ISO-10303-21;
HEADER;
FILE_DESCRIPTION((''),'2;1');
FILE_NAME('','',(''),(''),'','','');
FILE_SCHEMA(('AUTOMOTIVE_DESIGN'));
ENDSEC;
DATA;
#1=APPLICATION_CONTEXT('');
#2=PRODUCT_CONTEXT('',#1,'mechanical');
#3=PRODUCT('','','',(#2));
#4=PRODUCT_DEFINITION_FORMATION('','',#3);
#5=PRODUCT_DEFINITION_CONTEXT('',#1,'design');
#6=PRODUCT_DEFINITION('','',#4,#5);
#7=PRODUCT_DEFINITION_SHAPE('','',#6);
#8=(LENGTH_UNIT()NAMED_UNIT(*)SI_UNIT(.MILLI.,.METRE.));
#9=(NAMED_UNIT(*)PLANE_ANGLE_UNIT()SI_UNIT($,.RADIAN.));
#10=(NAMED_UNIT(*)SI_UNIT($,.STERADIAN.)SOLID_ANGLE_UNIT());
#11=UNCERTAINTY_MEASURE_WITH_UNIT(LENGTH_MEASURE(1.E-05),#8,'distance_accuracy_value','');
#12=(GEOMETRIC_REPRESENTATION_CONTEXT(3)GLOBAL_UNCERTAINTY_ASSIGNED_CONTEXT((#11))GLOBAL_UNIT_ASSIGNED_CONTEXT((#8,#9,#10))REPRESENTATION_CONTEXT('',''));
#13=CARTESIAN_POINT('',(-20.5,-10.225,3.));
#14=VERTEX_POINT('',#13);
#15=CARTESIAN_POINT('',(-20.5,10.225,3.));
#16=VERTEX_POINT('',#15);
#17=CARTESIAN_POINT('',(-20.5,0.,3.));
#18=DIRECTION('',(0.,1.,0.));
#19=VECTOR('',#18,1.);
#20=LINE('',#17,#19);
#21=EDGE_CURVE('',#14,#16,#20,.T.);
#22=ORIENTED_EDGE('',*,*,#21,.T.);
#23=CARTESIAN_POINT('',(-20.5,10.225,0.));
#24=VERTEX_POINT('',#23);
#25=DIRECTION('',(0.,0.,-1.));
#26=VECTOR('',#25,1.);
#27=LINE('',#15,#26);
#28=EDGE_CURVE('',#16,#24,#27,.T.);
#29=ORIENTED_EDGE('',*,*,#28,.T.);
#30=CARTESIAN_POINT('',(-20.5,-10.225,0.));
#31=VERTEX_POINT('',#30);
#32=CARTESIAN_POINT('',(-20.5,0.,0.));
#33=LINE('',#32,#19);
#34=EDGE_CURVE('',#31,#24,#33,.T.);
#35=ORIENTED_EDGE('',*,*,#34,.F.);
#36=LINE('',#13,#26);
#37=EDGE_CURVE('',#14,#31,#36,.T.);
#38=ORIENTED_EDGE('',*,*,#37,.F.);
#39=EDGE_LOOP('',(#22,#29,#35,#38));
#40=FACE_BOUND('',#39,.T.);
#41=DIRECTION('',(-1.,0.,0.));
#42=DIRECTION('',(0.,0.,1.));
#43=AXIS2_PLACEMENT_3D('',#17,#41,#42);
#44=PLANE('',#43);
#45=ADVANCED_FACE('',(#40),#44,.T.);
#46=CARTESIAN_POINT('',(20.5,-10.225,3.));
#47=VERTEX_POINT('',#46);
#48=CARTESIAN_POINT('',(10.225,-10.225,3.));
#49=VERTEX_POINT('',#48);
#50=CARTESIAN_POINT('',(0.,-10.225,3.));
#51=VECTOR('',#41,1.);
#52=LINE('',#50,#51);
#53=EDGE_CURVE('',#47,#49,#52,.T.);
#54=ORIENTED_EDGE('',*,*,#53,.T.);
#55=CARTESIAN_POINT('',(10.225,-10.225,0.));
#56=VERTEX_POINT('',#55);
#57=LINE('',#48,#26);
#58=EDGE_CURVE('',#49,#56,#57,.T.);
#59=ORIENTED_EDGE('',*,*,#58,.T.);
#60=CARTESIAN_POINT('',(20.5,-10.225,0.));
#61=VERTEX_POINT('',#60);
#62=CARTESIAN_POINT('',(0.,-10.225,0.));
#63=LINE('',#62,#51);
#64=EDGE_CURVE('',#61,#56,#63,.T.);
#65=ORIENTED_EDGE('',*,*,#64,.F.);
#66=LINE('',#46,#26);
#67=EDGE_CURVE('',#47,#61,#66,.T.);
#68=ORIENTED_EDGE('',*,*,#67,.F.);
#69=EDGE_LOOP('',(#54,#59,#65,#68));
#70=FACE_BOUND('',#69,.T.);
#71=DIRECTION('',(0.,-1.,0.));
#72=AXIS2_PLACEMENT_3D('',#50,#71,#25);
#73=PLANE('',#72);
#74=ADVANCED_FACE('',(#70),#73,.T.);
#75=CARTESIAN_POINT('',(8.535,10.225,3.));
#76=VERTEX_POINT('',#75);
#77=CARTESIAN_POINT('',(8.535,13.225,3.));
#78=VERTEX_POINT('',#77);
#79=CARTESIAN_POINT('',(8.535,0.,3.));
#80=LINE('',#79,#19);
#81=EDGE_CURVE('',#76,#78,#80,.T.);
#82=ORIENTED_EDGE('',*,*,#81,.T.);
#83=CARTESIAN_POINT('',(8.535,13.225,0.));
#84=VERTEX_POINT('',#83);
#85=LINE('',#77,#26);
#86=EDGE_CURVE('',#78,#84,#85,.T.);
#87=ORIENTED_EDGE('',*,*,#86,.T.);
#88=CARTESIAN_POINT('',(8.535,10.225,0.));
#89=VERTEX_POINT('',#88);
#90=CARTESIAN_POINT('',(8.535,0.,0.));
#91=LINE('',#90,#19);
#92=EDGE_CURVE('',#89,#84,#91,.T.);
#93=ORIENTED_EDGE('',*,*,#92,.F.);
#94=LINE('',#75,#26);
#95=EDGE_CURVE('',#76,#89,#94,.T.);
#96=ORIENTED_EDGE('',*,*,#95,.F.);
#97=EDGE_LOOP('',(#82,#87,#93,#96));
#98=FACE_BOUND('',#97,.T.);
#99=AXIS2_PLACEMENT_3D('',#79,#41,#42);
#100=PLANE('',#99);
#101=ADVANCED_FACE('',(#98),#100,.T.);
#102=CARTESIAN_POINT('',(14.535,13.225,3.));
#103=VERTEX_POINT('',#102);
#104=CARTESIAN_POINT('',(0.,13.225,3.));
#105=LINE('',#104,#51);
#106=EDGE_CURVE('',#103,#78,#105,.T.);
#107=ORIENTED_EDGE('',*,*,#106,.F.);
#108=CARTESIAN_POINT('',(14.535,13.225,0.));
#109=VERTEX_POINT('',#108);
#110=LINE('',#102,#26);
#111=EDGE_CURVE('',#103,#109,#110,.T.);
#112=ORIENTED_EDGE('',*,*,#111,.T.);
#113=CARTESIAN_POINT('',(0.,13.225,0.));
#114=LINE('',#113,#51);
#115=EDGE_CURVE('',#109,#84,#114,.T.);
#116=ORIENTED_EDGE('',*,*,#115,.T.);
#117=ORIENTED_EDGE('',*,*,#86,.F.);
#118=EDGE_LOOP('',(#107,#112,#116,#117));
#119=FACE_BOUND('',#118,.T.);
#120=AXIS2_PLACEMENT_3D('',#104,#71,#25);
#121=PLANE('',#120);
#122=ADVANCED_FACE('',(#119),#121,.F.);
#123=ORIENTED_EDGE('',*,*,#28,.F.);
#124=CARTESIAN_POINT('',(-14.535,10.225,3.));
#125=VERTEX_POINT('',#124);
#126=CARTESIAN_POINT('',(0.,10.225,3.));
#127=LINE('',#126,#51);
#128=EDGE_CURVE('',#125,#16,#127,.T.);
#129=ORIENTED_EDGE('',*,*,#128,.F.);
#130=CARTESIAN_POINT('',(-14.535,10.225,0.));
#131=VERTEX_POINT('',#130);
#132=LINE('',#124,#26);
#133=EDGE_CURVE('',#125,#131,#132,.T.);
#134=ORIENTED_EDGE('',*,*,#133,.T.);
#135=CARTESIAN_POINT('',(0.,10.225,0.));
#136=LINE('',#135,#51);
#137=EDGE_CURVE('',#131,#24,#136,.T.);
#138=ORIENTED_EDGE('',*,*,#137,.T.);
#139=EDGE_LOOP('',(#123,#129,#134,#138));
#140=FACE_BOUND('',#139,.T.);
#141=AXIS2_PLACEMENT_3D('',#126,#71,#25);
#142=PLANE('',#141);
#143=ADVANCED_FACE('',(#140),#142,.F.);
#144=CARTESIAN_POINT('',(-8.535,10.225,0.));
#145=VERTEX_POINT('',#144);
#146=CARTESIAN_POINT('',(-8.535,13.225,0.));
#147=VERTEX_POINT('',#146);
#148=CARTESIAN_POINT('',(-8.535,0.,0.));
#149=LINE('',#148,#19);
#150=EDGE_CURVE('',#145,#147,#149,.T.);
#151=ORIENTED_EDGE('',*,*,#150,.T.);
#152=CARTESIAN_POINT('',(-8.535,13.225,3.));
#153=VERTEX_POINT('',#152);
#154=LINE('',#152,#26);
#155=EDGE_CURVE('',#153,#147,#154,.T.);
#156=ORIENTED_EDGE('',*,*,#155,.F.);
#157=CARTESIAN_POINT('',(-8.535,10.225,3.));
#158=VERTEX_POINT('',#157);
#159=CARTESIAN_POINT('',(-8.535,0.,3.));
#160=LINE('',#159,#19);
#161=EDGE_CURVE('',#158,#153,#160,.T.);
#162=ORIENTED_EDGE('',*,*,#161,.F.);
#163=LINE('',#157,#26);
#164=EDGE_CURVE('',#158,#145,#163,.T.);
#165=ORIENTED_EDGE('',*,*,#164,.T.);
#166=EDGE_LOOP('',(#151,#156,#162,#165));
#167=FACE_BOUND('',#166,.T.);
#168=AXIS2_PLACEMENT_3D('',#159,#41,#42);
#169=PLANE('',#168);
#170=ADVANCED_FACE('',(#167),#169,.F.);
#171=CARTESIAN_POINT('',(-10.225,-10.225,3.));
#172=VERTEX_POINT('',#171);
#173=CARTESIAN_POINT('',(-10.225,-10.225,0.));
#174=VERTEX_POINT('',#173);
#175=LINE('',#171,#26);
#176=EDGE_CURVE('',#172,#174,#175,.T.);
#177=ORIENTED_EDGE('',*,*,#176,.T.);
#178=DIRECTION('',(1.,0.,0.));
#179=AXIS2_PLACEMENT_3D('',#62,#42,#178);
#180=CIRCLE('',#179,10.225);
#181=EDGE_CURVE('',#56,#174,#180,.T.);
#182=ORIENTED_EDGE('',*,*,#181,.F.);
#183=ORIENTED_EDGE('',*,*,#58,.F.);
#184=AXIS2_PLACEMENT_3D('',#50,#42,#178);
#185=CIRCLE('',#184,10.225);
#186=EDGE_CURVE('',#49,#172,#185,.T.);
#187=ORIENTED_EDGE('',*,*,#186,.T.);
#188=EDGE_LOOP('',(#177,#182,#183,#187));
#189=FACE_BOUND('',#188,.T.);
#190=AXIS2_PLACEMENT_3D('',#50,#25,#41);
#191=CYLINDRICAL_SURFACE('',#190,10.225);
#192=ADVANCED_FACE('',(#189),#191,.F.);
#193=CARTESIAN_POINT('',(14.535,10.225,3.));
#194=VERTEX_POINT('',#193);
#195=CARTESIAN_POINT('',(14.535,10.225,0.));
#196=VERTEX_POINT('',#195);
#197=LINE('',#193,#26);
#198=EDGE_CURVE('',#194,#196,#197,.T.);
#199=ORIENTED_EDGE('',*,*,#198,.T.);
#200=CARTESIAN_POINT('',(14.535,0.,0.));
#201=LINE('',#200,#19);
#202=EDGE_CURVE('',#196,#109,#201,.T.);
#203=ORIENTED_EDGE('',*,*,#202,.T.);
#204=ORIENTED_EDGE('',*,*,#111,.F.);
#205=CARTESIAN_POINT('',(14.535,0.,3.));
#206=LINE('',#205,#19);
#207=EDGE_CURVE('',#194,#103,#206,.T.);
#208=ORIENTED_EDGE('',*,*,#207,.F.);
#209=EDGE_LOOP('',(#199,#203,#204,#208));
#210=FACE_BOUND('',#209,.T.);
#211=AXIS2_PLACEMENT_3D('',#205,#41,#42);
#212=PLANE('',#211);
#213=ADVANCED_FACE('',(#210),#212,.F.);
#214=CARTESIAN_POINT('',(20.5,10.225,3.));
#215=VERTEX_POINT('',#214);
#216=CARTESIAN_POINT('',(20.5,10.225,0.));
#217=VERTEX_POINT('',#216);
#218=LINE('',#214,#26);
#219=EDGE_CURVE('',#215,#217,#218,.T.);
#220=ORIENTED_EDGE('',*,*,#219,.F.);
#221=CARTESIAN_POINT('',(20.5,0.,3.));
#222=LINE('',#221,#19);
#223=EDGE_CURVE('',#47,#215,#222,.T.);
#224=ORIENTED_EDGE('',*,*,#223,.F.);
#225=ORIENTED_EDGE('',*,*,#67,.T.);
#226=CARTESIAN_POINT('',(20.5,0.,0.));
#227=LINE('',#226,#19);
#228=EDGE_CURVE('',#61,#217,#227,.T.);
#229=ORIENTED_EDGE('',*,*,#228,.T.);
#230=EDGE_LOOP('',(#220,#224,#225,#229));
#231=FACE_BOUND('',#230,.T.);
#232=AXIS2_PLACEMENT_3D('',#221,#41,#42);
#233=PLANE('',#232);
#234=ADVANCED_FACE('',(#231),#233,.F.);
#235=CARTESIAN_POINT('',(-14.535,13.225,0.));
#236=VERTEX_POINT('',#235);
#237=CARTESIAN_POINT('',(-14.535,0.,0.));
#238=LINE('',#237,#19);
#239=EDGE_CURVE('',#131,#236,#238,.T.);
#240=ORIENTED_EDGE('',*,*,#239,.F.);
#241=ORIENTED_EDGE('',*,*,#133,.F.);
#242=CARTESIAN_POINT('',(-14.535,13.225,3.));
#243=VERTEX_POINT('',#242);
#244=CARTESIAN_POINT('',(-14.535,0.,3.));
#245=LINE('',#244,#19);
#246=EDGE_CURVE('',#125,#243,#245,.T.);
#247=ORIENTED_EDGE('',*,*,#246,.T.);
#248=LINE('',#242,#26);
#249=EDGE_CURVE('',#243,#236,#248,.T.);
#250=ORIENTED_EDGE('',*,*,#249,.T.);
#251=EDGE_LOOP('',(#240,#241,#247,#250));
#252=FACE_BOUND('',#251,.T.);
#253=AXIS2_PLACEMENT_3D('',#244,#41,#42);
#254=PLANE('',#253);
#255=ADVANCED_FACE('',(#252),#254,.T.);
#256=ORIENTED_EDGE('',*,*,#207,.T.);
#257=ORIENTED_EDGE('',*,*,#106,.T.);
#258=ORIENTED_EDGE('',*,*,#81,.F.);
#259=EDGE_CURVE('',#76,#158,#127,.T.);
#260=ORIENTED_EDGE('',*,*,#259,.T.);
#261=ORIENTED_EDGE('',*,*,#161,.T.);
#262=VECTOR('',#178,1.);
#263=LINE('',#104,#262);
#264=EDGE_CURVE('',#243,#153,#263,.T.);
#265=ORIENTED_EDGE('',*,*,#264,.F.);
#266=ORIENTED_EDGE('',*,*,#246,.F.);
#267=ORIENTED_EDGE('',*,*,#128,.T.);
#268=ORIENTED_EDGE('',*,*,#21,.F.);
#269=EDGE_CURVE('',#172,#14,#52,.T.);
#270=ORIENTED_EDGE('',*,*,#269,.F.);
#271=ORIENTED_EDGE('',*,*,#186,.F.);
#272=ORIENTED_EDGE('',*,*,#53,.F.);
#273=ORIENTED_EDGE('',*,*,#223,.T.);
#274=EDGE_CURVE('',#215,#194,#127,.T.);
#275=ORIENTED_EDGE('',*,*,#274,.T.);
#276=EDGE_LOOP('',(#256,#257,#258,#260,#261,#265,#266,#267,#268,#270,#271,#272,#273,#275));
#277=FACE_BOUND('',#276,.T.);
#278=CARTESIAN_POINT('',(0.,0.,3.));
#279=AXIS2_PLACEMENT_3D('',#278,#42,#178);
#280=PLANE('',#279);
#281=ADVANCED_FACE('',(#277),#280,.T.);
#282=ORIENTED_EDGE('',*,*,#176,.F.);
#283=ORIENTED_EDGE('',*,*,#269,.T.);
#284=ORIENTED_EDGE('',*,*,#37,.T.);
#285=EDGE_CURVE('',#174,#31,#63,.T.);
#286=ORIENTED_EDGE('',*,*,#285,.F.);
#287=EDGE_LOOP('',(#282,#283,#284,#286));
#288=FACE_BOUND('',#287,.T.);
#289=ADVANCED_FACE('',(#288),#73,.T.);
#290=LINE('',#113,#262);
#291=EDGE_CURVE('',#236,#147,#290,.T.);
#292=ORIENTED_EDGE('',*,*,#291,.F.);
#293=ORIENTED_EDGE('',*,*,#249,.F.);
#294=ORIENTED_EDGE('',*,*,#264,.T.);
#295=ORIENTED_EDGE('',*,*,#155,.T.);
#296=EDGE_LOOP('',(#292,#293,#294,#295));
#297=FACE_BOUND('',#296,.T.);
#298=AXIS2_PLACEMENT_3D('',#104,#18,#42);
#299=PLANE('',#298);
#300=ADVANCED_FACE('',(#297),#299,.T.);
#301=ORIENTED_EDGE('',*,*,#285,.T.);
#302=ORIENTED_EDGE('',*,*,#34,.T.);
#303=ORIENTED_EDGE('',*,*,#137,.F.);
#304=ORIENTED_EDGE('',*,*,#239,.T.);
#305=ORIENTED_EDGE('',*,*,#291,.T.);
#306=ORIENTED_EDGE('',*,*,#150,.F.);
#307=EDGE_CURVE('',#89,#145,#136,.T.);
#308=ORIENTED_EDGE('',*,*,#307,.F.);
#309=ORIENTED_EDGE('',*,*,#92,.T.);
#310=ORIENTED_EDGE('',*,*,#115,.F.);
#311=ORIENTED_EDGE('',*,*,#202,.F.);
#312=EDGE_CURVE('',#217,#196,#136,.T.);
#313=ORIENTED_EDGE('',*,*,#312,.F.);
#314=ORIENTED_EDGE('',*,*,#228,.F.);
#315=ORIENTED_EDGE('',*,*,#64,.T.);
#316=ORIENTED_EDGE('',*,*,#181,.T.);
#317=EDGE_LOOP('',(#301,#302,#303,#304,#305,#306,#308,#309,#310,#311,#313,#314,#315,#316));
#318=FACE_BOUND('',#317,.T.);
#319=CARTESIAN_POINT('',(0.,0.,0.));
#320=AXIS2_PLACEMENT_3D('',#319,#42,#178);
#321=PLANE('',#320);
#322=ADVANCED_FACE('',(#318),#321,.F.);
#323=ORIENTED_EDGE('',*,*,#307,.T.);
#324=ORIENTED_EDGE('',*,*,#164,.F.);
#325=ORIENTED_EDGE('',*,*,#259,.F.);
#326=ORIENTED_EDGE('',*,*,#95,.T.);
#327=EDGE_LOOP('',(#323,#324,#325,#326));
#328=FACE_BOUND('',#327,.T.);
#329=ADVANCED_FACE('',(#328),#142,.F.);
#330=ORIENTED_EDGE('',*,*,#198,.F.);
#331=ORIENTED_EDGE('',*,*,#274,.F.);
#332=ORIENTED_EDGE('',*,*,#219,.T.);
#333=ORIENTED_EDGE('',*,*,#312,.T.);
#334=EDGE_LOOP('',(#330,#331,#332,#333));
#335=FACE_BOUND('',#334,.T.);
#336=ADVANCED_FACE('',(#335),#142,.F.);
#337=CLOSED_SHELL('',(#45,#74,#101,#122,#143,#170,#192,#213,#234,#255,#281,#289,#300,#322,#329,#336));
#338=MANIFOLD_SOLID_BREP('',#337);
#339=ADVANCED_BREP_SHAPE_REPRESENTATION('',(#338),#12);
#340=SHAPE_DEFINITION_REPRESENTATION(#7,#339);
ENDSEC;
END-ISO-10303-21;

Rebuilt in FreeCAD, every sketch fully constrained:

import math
import FreeCAD as App
import Part
import Sketcher
from FreeCAD import Vector

doc = App.newDocument("Part")
params = doc.addObject("Spreadsheet::Sheet", "Params")
for row, (alias, value) in enumerate([
    ("sketch1_width", "6 mm"),
    ("sketch1_height", "3 mm"),
    ("sketch1_width2", "17.07 mm"),
    ("sketch1_height2", "20.45 mm"),
    ("pad1_length", "3 mm"),
], start=1):
    params.set(f"A{row}", alias)
    params.set(f"B{row}", "=" + value)
    params.setAlias(f"B{row}", alias)

body = doc.addObject("PartDesign::Body", "Body")

# Sketch on XY plane
sketch1 = doc.addObject("Sketcher::SketchObject", "Sketch")
body.addObject(sketch1)
sketch1.AttachmentSupport = (doc.XY_Plane, [""])
sketch1.MapMode = "FlatFace"
sketch1.addGeometry([
    Part.ArcOfCircle(Part.Circle(Vector(0, -10.2, 0), Vector(0, 0, 1), 10.2), math.radians(0), math.radians(180)),  # 0
    Part.LineSegment(Vector(10.2, -10.2, 0), Vector(20.5, -10.2, 0)),  # 1
    Part.LineSegment(Vector(20.5, -10.2, 0), Vector(20.5, 10.2, 0)),  # 2
    Part.LineSegment(Vector(20.5, 10.2, 0), Vector(14.5, 10.2, 0)),  # 3
    Part.LineSegment(Vector(14.5, 10.2, 0), Vector(14.5, 13.2, 0)),  # 4
    Part.LineSegment(Vector(14.5, 13.2, 0), Vector(8.5, 13.2, 0)),  # 5
    Part.LineSegment(Vector(8.5, 13.2, 0), Vector(8.5, 10.2, 0)),  # 6
    Part.LineSegment(Vector(8.5, 10.2, 0), Vector(-8.5, 10.2, 0)),  # 7
    Part.LineSegment(Vector(-8.5, 10.2, 0), Vector(-8.5, 13.2, 0)),  # 8
    Part.LineSegment(Vector(-8.5, 13.2, 0), Vector(-14.5, 13.2, 0)),  # 9
    Part.LineSegment(Vector(-14.5, 13.2, 0), Vector(-14.5, 10.2, 0)),  # 10
    Part.LineSegment(Vector(-14.5, 10.2, 0), Vector(-20.5, 10.2, 0)),  # 11
    Part.LineSegment(Vector(-20.5, 10.2, 0), Vector(-20.5, -10.2, 0)),  # 12
    Part.LineSegment(Vector(-20.5, -10.2, 0), Vector(-10.2, -10.2, 0)),  # 13
], False)
sketch1.addConstraint([
    Sketcher.Constraint("Coincident", 0, 1, 1, 1),
    Sketcher.Constraint("Coincident", 1, 2, 2, 1),
    Sketcher.Constraint("Coincident", 2, 2, 3, 1),
    Sketcher.Constraint("Coincident", 3, 2, 4, 1),
    Sketcher.Constraint("Coincident", 4, 2, 5, 1),
    Sketcher.Constraint("Coincident", 5, 2, 6, 1),
    Sketcher.Constraint("Coincident", 6, 2, 7, 1),
    Sketcher.Constraint("Coincident", 7, 2, 8, 1),
    Sketcher.Constraint("Coincident", 8, 2, 9, 1),
    Sketcher.Constraint("Coincident", 9, 2, 10, 1),
    Sketcher.Constraint("Coincident", 10, 2, 11, 1),
    Sketcher.Constraint("Coincident", 11, 2, 12, 1),
    Sketcher.Constraint("Coincident", 12, 2, 13, 1),
    Sketcher.Constraint("Coincident", 13, 2, 0, 2),
    Sketcher.Constraint("Horizontal", 1),
    Sketcher.Constraint("Vertical", 2),
    Sketcher.Constraint("Horizontal", 3),
    Sketcher.Constraint("Vertical", 4),
    Sketcher.Constraint("Horizontal", 5),
    Sketcher.Constraint("Vertical", 6),
    Sketcher.Constraint("Horizontal", 7),
    Sketcher.Constraint("Vertical", 8),
    Sketcher.Constraint("Horizontal", 9),
    Sketcher.Constraint("Vertical", 10),
    Sketcher.Constraint("Horizontal", 11),
    Sketcher.Constraint("Vertical", 12),
    Sketcher.Constraint("Horizontal", 13),
    Sketcher.Constraint("Symmetric", 1, 2, 11, 2, -1, 1),
    Sketcher.Constraint("Symmetric", 5, 2, 8, 2, -2),
    Sketcher.Constraint("Symmetric", 3, 2, 10, 2, -2),
    Sketcher.Constraint("Symmetric", 0, 1, 13, 2, -2),
    Sketcher.Constraint("Horizontal", 3, 2, 6, 2),
    Sketcher.Constraint("DistanceX", 5, 2, 5, 1, 6.0),
    Sketcher.Constraint("DistanceY", 4, 1, 4, 2, 3.0),
    Sketcher.Constraint("Radius", 0, 10.225),
    Sketcher.Constraint("DistanceX", 7, 2, 7, 1, 17.07),
    Sketcher.Constraint("DistanceY", 2, 1, 2, 2, 20.45),
    Sketcher.Constraint("DistanceX", -1, 1, 1, 2, 20.5),
    Sketcher.Constraint("DistanceY", 0, 3, 2, 2, 20.45),
])
sketch1.setExpression("Constraints[32]", "Params.sketch1_width")
sketch1.setExpression("Constraints[33]", "Params.sketch1_height")
sketch1.setExpression("Constraints[35]", "Params.sketch1_width2")
sketch1.setExpression("Constraints[36]", "Params.sketch1_height2")
pad1 = doc.addObject("PartDesign::Pad", "Pad")
body.addObject(pad1)
pad1.Profile = sketch1
pad1.setExpression("Length", "Params.pad1_length")

doc.recompute()
